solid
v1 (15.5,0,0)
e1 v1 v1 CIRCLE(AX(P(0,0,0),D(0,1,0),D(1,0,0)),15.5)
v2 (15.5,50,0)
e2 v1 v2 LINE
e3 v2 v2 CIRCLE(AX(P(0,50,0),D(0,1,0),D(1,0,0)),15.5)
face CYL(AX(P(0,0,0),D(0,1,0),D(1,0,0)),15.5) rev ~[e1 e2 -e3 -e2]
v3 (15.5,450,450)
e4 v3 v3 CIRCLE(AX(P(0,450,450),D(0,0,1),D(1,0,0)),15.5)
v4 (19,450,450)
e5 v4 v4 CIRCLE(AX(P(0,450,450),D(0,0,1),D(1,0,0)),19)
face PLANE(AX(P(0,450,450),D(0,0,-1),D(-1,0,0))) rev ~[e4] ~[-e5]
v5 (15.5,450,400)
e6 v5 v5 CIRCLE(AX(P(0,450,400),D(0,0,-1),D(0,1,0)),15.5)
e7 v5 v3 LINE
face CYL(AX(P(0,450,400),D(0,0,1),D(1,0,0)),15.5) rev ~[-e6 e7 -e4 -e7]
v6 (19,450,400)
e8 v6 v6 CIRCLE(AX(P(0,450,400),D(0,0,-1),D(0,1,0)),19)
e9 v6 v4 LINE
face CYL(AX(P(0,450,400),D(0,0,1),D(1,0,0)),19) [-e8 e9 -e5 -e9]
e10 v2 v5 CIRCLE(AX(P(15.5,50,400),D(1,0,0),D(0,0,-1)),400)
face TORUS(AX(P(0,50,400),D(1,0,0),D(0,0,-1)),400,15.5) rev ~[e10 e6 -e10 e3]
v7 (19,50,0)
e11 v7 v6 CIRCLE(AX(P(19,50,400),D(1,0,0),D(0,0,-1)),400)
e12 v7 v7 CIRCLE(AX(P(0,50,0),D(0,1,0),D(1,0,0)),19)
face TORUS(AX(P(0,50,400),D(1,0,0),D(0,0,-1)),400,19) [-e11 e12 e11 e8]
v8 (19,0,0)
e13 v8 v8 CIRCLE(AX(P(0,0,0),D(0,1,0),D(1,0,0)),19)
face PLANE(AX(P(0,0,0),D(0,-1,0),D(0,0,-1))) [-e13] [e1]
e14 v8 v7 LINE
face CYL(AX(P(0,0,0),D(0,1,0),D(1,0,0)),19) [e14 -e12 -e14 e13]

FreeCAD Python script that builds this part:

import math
import FreeCAD as App
import Part
import Sketcher
from FreeCAD import Vector

doc = App.newDocument("Part")
body = doc.addObject("PartDesign::Body", "Body")

# Sketch on XZ plane
sketch1 = body.newObject("Sketcher::SketchObject", "Sketch")
sketch1.AttachmentSupport = (doc.getObject("XZ_Plane"), [""])
sketch1.MapMode = "FlatFace"
sketch1.addGeometry(Part.Circle(Vector(0, 0, 0), Vector(0, 0, 1), 19), False)
sketch1.addGeometry(Part.Circle(Vector(0, 0, 0), Vector(0, 0, 1), 15.5), False)
sketch1.addConstraint(Sketcher.Constraint("Coincident", 0, 3, -1, 1))
sketch1.addConstraint(Sketcher.Constraint("Coincident", 1, 3, -1, 1))
sketch1.addConstraint(Sketcher.Constraint("Diameter", 0, 38.0))
sketch1.addConstraint(Sketcher.Constraint("Diameter", 1, 31.0))

# Sketch on YZ plane
sketch2 = body.newObject("Sketcher::SketchObject", "Sketch001")
sketch2.AttachmentSupport = (doc.getObject("YZ_Plane"), [""])
sketch2.MapMode = "FlatFace"
sketch2.addGeometry(Part.LineSegment(Vector(0, 0, 0), Vector(50, 0, 0)), False)
sketch2.addGeometry(Part.ArcOfCircle(Part.Circle(Vector(50, 400, 0), Vector(0, 0, 1), 400), math.radians(-90), math.radians(0)), False)
sketch2.addGeometry(Part.LineSegment(Vector(450, 400, 0), Vector(450, 450, 0)), False)
sketch2.addConstraint(Sketcher.Constraint("Tangent", 0, 2, 1, 1))
sketch2.addConstraint(Sketcher.Constraint("Tangent", 1, 2, 2, 1))
sketch2.addConstraint(Sketcher.Constraint("Horizontal", 0))
sketch2.addConstraint(Sketcher.Constraint("Vertical", 2))
sketch2.addConstraint(Sketcher.Constraint("Coincident", 0, 1, -1, 1))
sketch2.addConstraint(Sketcher.Constraint("Equal", 0, 2))
sketch2.addConstraint(Sketcher.Constraint("Radius", 1, 400.0))
sketch2.addConstraint(Sketcher.Constraint("DistanceX", 0, 1, 0, 2, 50.0))
doc.recompute()

additivepipe = body.newObject("PartDesign::AdditivePipe", "AdditivePipe")
additivepipe.Profile = sketch1
additivepipe.Spine = (sketch2, ["Edge1", "Edge2", "Edge3"])

doc.recompute()
